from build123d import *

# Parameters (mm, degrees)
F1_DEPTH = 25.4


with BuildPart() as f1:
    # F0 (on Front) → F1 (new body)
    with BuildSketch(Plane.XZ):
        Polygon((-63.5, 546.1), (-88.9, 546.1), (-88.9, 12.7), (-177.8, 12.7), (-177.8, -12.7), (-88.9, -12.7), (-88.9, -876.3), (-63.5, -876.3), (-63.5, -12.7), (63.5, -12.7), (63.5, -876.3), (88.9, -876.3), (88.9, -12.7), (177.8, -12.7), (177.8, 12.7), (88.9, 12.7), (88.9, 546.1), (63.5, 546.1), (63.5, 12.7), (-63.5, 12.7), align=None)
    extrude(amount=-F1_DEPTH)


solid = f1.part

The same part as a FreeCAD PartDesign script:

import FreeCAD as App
import Part
import Sketcher
from FreeCAD import Vector
Q = App.Units.Quantity


def add_polygon(sketch, points):
    """Adds a closed chain of lines whose ends are joined by coincident constraints."""
    first, n = sketch.GeometryCount, len(points)
    for a, b in zip(points, points[1:] + points[:1]):
        sketch.addGeometry(Part.LineSegment(App.Vector(*a, 0), App.Vector(*b, 0)), False)
    for i in range(n):
        sketch.addConstraint(Sketcher.Constraint("Coincident", first + i, 2, first + (i + 1) % n, 1))

doc = App.newDocument("Part")
body = doc.addObject("PartDesign::Body", "Body")

sketch1 = body.newObject("Sketcher::SketchObject", "Sketch")
sketch1.AttachmentSupport = (doc.getObject("XZ_Plane"), [""])
sketch1.MapMode = "FlatFace"
add_polygon(sketch1, [(-64, 546), (-89, 546), (-89, 13), (-178, 13), (-178, -13), (-89, -13), (-89, -876), (-64, -876), (-64, -13), (64, -13), (64, -876), (89, -876), (89, -13), (178, -13), (178, 13), (89, 13), (89, 546), (64, 546), (64, 13), (-64, 13)])
sketch1.addConstraint(Sketcher.Constraint("Horizontal", 0))
sketch1.addConstraint(Sketcher.Constraint("Vertical", 1))
sketch1.addConstraint(Sketcher.Constraint("Horizontal", 2))
sketch1.addConstraint(Sketcher.Constraint("Vertical", 3))
sketch1.addConstraint(Sketcher.Constraint("Horizontal", 4))
sketch1.addConstraint(Sketcher.Constraint("Vertical", 5))
sketch1.addConstraint(Sketcher.Constraint("Horizontal", 6))
sketch1.addConstraint(Sketcher.Constraint("Vertical", 7))
sketch1.addConstraint(Sketcher.Constraint("Horizontal", 8))
sketch1.addConstraint(Sketcher.Constraint("Vertical", 9))
sketch1.addConstraint(Sketcher.Constraint("Horizontal", 10))
sketch1.addConstraint(Sketcher.Constraint("Vertical", 11))
sketch1.addConstraint(Sketcher.Constraint("Horizontal", 12))
sketch1.addConstraint(Sketcher.Constraint("Vertical", 13))
sketch1.addConstraint(Sketcher.Constraint("Horizontal", 14))
sketch1.addConstraint(Sketcher.Constraint("Vertical", 15))
sketch1.addConstraint(Sketcher.Constraint("Horizontal", 16))
sketch1.addConstraint(Sketcher.Constraint("Vertical", 17))
sketch1.addConstraint(Sketcher.Constraint("Horizontal", 18))
sketch1.addConstraint(Sketcher.Constraint("Vertical", 19))
sketch1.addConstraint(Sketcher.Constraint("Symmetric", 1, 2, 11, 2, -1, 1))
sketch1.addConstraint(Sketcher.Constraint("Symmetric", 3, 2, 13, 2, -1, 1))
sketch1.addConstraint(Sketcher.Constraint("Symmetric", 7, 2, 17, 2, -1, 1))
sketch1.addConstraint(Sketcher.Constraint("Symmetric", 6, 2, 9, 2, -2))
sketch1.addConstraint(Sketcher.Constraint("Symmetric", 4, 2, 11, 2, -2))
sketch1.addConstraint(Sketcher.Constraint("Symmetric", 0, 2, 15, 2, -2))
sketch1.addConstraint(Sketcher.Constraint("Horizontal", 4, 2, 7, 2))
sketch1.addConstraint(Sketcher.Constraint("Vertical", 7, 2, 18, 2))
sketch1.addConstraint(Sketcher.Constraint("Equal", 16, 3))
sketch1.addConstraint(Sketcher.Constraint("DistanceX", 0, 2, 0, 1, Q("1 in")))
sketch1.addConstraint(Sketcher.Constraint("DistanceX", 8, 1, 8, 2, Q("5 in")))
sketch1.addConstraint(Sketcher.Constraint("DistanceY", 1, 2, 1, 1, Q("21 in")))
sketch1.addConstraint(Sketcher.Constraint("DistanceY", 5, 2, 5, 1, Q("34 in")))
sketch1.addConstraint(Sketcher.Constraint("DistanceX", 2, 2, 2, 1, Q("3.5 in")))
pad1 = body.newObject("PartDesign::Pad", "Pad")
pad1.Profile = sketch1
pad1.Length = Q("1 in")
pad1.Reversed = True

doc.recompute()
